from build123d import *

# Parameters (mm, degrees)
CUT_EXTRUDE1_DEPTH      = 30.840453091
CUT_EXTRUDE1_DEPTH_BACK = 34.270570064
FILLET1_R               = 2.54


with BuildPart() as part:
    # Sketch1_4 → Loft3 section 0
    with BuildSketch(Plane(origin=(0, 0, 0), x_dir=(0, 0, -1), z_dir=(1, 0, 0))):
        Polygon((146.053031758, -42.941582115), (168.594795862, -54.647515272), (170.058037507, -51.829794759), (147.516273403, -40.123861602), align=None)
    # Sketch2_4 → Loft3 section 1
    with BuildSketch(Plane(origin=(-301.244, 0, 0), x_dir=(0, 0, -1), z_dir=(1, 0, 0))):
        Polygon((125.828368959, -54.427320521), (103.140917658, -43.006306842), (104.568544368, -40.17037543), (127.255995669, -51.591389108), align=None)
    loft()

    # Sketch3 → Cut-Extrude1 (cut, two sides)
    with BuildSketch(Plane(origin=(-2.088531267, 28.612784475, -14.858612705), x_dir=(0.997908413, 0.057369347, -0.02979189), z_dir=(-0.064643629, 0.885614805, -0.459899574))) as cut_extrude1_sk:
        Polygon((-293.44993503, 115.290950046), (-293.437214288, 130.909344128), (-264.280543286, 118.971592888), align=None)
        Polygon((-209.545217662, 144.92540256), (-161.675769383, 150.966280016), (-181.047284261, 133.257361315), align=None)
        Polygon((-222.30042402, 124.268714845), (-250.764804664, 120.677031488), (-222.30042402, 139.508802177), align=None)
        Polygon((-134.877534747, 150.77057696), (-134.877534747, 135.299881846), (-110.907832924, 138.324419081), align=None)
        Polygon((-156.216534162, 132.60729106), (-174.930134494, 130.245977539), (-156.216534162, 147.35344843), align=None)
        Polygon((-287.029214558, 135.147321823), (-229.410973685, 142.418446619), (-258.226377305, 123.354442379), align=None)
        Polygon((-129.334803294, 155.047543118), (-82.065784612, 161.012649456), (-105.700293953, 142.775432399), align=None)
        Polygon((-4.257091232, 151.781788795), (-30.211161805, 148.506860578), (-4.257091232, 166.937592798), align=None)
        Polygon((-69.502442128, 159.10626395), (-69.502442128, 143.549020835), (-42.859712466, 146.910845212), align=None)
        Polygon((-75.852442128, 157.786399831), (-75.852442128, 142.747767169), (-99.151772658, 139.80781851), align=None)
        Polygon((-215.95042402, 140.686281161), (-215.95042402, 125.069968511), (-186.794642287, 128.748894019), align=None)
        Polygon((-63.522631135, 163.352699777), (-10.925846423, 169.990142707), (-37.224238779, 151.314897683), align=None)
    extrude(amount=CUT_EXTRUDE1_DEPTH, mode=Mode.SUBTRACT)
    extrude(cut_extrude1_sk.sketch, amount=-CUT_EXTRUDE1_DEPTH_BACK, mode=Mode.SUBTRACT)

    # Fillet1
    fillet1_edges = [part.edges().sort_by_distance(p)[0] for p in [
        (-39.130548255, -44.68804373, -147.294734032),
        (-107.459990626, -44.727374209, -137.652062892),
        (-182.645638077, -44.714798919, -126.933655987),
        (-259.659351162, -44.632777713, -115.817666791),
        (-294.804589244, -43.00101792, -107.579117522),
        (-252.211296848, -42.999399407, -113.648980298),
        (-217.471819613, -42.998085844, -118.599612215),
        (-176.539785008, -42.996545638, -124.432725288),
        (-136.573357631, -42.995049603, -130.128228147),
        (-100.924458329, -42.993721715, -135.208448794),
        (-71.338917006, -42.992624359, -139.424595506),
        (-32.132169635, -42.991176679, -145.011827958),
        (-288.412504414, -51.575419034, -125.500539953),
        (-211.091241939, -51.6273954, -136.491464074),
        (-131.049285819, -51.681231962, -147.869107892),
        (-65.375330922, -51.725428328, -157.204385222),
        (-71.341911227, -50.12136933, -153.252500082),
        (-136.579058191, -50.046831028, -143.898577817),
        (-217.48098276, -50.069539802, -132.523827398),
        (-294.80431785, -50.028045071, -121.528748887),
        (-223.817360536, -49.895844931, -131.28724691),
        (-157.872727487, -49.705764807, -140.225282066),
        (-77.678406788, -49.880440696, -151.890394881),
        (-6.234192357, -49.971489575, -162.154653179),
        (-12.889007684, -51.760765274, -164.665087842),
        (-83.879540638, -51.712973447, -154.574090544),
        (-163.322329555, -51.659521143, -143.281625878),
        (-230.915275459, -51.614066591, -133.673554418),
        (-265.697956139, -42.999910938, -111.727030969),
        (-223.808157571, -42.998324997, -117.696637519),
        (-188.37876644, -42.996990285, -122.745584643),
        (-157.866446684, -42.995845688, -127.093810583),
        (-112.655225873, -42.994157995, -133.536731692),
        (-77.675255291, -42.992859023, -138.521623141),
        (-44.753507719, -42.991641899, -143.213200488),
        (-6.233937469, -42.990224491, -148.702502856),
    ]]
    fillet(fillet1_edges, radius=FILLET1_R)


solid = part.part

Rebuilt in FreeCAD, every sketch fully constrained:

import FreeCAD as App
import Part
import Sketcher

V = App.Vector
Q = App.Units.Quantity


def edges_at(feature, points):
    """Names of the edges that pass closest to the given points."""
    edges = feature.Shape.Edges
    near = lambda p: min(range(len(edges)), key=lambda i: edges[i].distToShape(Part.Vertex(*p))[0])
    return sorted({f"Edge{near(p) + 1}" for p in points})

doc = App.newDocument("Part")
body = doc.addObject("PartDesign::Body", "Body")

sketch1 = body.newObject("Sketcher::SketchObject", "Sketch")
sketch1.AttachmentSupport = (doc.getObject("YZ_Plane"), [""])
sketch1.MapMode = "FlatFace"
sketch1.addGeometry(Part.LineSegment(V(-42.9, -146.1, 0), V(-54.6, -168.6, 0)), False)
sketch1.addGeometry(Part.LineSegment(V(-54.6, -168.6, 0), V(-51.8, -170.1, 0)), False)
sketch1.addGeometry(Part.LineSegment(V(-51.8, -170.1, 0), V(-40.1, -147.5, 0)), False)
sketch1.addGeometry(Part.LineSegment(V(-40.1, -147.5, 0), V(-42.9, -146.1, 0)), False)
sketch1.addConstraint(Sketcher.Constraint("Coincident", 0, 2, 1, 1))
sketch1.addConstraint(Sketcher.Constraint("Coincident", 1, 2, 2, 1))
sketch1.addConstraint(Sketcher.Constraint("Coincident", 2, 2, 3, 1))
sketch1.addConstraint(Sketcher.Constraint("Coincident", 3, 2, 0, 1))
sketch1.addConstraint(Sketcher.Constraint("Perpendicular", 0, 1))
sketch1.addConstraint(Sketcher.Constraint("Perpendicular", 1, 2))
sketch1.addConstraint(Sketcher.Constraint("Perpendicular", 2, 3))
sketch1.addConstraint(Sketcher.Constraint("Distance", 0, Q("1 in")))
sketch1.addConstraint(Sketcher.Constraint("Distance", 1, Q("0.125 in")))
sketch1.addConstraint(Sketcher.Constraint("DistanceX", 2, 2, -1, 1, Q("40.123862 mm")))
sketch1.addConstraint(Sketcher.Constraint("DistanceY", 3, 2, -1, 1, Q("146.053032 mm")))
sketch1.addConstraint(Sketcher.Constraint("DistanceX", 0, 2, 1, 2, Q("2.817721 mm")))

sketch2 = body.newObject("Sketcher::SketchObject", "Sketch001")
sketch2.AttachmentSupport = (doc.getObject("YZ_Plane"), [""])
sketch2.MapMode = "FlatFace"
sketch2.AttachmentOffset = App.Placement(V(0, 0, -11.86 * 25.4), App.Rotation())
sketch2.addGeometry(Part.LineSegment(V(-43, -103.1, 0), V(-54.4, -125.8, 0)), False)
sketch2.addGeometry(Part.LineSegment(V(-54.4, -125.8, 0), V(-51.6, -127.3, 0)), False)
sketch2.addGeometry(Part.LineSegment(V(-51.6, -127.3, 0), V(-40.2, -104.6, 0)), False)
sketch2.addGeometry(Part.LineSegment(V(-40.2, -104.6, 0), V(-43, -103.1, 0)), False)
sketch2.addConstraint(Sketcher.Constraint("Coincident", 0, 2, 1, 1))
sketch2.addConstraint(Sketcher.Constraint("Coincident", 1, 2, 2, 1))
sketch2.addConstraint(Sketcher.Constraint("Coincident", 2, 2, 3, 1))
sketch2.addConstraint(Sketcher.Constraint("Coincident", 3, 2, 0, 1))
sketch2.addConstraint(Sketcher.Constraint("Perpendicular", 0, 1))
sketch2.addConstraint(Sketcher.Constraint("Perpendicular", 1, 2))
sketch2.addConstraint(Sketcher.Constraint("Perpendicular", 2, 3))
sketch2.addConstraint(Sketcher.Constraint("Distance", 0, Q("1 in")))
sketch2.addConstraint(Sketcher.Constraint("Distance", 1, Q("0.125 in")))
sketch2.addConstraint(Sketcher.Constraint("DistanceX", 0, 2, -1, 1, Q("54.427321 mm")))
sketch2.addConstraint(Sketcher.Constraint("DistanceY", 0, 2, -1, 1, Q("125.828369 mm")))
sketch2.addConstraint(Sketcher.Constraint("DistanceX", 1, 2, -1, 1, Q("51.591389 mm")))

additiveloft = body.newObject("PartDesign::AdditiveLoft", "AdditiveLoft")
additiveloft.Profile = sketch1
additiveloft.Sections = [sketch2]

sketch3 = body.newObject("Sketcher::SketchObject", "Sketch002")
sketch3.Placement = App.Placement(V(-2.088531, 28.612784, -14.858613), App.Rotation(V(0.997908413, 0.057369348, -0.02979189), V(0, -0.46086351, -0.887471027), V(-0.064643629, 0.885614805, -0.459899574), "ZXY"))
sketch3.addGeometry(Part.LineSegment(V(-293, 131, 0), V(-293, 115, 0)), False)
sketch3.addGeometry(Part.LineSegment(V(-293, 115, 0), V(-264, 119, 0)), False)
sketch3.addGeometry(Part.LineSegment(V(-264, 119, 0), V(-293, 131, 0)), False)
sketch3.addGeometry(Part.LineSegment(V(-162, 151, 0), V(-210, 145, 0)), False)
sketch3.addGeometry(Part.LineSegment(V(-210, 145, 0), V(-181, 133, 0)), False)
sketch3.addGeometry(Part.LineSegment(V(-181, 133, 0), V(-162, 151, 0)), False)
sketch3.addGeometry(Part.LineSegment(V(-251, 121, 0), V(-222, 124, 0)), False)
sketch3.addGeometry(Part.LineSegment(V(-222, 124, 0), V(-222, 140, 0)), False)
sketch3.addGeometry(Part.LineSegment(V(-222, 140, 0), V(-251, 121, 0)), False)
sketch3.addGeometry(Part.LineSegment(V(-135, 151, 0), V(-135, 135, 0)), False)
sketch3.addGeometry(Part.LineSegment(V(-135, 135, 0), V(-111, 138, 0)), False)
sketch3.addGeometry(Part.LineSegment(V(-111, 138, 0), V(-135, 151, 0)), False)
sketch3.addGeometry(Part.LineSegment(V(-175, 130, 0), V(-156, 133, 0)), False)
sketch3.addGeometry(Part.LineSegment(V(-156, 133, 0), V(-156, 147, 0)), False)
sketch3.addGeometry(Part.LineSegment(V(-156, 147, 0), V(-175, 130, 0)), False)
sketch3.addGeometry(Part.LineSegment(V(-229, 142, 0), V(-287, 135, 0)), False)
sketch3.addGeometry(Part.LineSegment(V(-287, 135, 0), V(-258, 123, 0)), False)
sketch3.addGeometry(Part.LineSegment(V(-258, 123, 0), V(-229, 142, 0)), False)
sketch3.addGeometry(Part.LineSegment(V(-82, 161, 0), V(-129, 155, 0)), False)
sketch3.addGeometry(Part.LineSegment(V(-129, 155, 0), V(-106, 143, 0)), False)
sketch3.addGeometry(Part.LineSegment(V(-106, 143, 0), V(-82, 161, 0)), False)
sketch3.addGeometry(Part.LineSegment(V(-30, 149, 0), V(-4, 152, 0)), False)
sketch3.addGeometry(Part.LineSegment(V(-4, 152, 0), V(-4, 167, 0)), False)
sketch3.addGeometry(Part.LineSegment(V(-4, 167, 0), V(-30, 149, 0)), False)
sketch3.addGeometry(Part.LineSegment(V(-70, 159, 0), V(-70, 144, 0)), False)
sketch3.addGeometry(Part.LineSegment(V(-70, 144, 0), V(-43, 147, 0)), False)
sketch3.addGeometry(Part.LineSegment(V(-43, 147, 0), V(-70, 159, 0)), False)
sketch3.addGeometry(Part.LineSegment(V(-76, 143, 0), V(-76, 158, 0)), False)
sketch3.addGeometry(Part.LineSegment(V(-76, 158, 0), V(-99, 140, 0)), False)
sketch3.addGeometry(Part.LineSegment(V(-99, 140, 0), V(-76, 143, 0)), False)
sketch3.addGeometry(Part.LineSegment(V(-216, 141, 0), V(-216, 125, 0)), False)
sketch3.addGeometry(Part.LineSegment(V(-216, 125, 0), V(-187, 129, 0)), False)
sketch3.addGeometry(Part.LineSegment(V(-187, 129, 0), V(-216, 141, 0)), False)
sketch3.addGeometry(Part.LineSegment(V(-11, 170, 0), V(-64, 163, 0)), False)
sketch3.addGeometry(Part.LineSegment(V(-64, 163, 0), V(-37, 151, 0)), False)
sketch3.addGeometry(Part.LineSegment(V(-37, 151, 0), V(-11, 170, 0)), False)
sketch3.addConstraint(Sketcher.Constraint("Coincident", 0, 2, 1, 1))
sketch3.addConstraint(Sketcher.Constraint("Coincident", 1, 2, 2, 1))
sketch3.addConstraint(Sketcher.Constraint("Coincident", 2, 2, 0, 1))
sketch3.addConstraint(Sketcher.Constraint("Coincident", 3, 2, 4, 1))
sketch3.addConstraint(Sketcher.Constraint("Coincident", 4, 2, 5, 1))
sketch3.addConstraint(Sketcher.Constraint("Coincident", 5, 2, 3, 1))
sketch3.addConstraint(Sketcher.Constraint("Coincident", 6, 2, 7, 1))
sketch3.addConstraint(Sketcher.Constraint("Coincident", 7, 2, 8, 1))
sketch3.addConstraint(Sketcher.Constraint("Coincident", 8, 2, 6, 1))
sketch3.addConstraint(Sketcher.Constraint("Coincident", 9, 2, 10, 1))
sketch3.addConstraint(Sketcher.Constraint("Coincident", 10, 2, 11, 1))
sketch3.addConstraint(Sketcher.Constraint("Coincident", 11, 2, 9, 1))
sketch3.addConstraint(Sketcher.Constraint("Coincident", 12, 2, 13, 1))
sketch3.addConstraint(Sketcher.Constraint("Coincident", 13, 2, 14, 1))
sketch3.addConstraint(Sketcher.Constraint("Coincident", 14, 2, 12, 1))
sketch3.addConstraint(Sketcher.Constraint("Coincident", 15, 2, 16, 1))
sketch3.addConstraint(Sketcher.Constraint("Coincident", 16, 2, 17, 1))
sketch3.addConstraint(Sketcher.Constraint("Coincident", 17, 2, 15, 1))
sketch3.addConstraint(Sketcher.Constraint("Coincident", 18, 2, 19, 1))
sketch3.addConstraint(Sketcher.Constraint("Coincident", 19, 2, 20, 1))
sketch3.addConstraint(Sketcher.Constraint("Coincident", 20, 2, 18, 1))
sketch3.addConstraint(Sketcher.Constraint("Coincident", 21, 2, 22, 1))
sketch3.addConstraint(Sketcher.Constraint("Coincident", 22, 2, 23, 1))
sketch3.addConstraint(Sketcher.Constraint("Coincident", 23, 2, 21, 1))
sketch3.addConstraint(Sketcher.Constraint("Coincident", 24, 2, 25, 1))
sketch3.addConstraint(Sketcher.Constraint("Coincident", 25, 2, 26, 1))
sketch3.addConstraint(Sketcher.Constraint("Coincident", 26, 2, 24, 1))
sketch3.addConstraint(Sketcher.Constraint("Coincident", 27, 2, 28, 1))
sketch3.addConstraint(Sketcher.Constraint("Coincident", 28, 2, 29, 1))
sketch3.addConstraint(Sketcher.Constraint("Coincident", 29, 2, 27, 1))
sketch3.addConstraint(Sketcher.Constraint("Coincident", 30, 2, 31, 1))
sketch3.addConstraint(Sketcher.Constraint("Coincident", 31, 2, 32, 1))
sketch3.addConstraint(Sketcher.Constraint("Coincident", 32, 2, 30, 1))
sketch3.addConstraint(Sketcher.Constraint("Coincident", 33, 2, 34, 1))
sketch3.addConstraint(Sketcher.Constraint("Coincident", 34, 2, 35, 1))
sketch3.addConstraint(Sketcher.Constraint("Coincident", 35, 2, 33, 1))
sketch3.addConstraint(Sketcher.Constraint("Vertical", 7))
sketch3.addConstraint(Sketcher.Constraint("Vertical", 9))
sketch3.addConstraint(Sketcher.Constraint("Vertical", 13))
sketch3.addConstraint(Sketcher.Constraint("Vertical", 22))
sketch3.addConstraint(Sketcher.Constraint("Vertical", 24))
sketch3.addConstraint(Sketcher.Constraint("Vertical", 27))
sketch3.addConstraint(Sketcher.Constraint("Vertical", 30))
sketch3.addConstraint(Sketcher.Constraint("Parallel", 2, 4))
sketch3.addConstraint(Sketcher.Constraint("Parallel", 1, 6))
sketch3.addConstraint(Sketcher.Constraint("Parallel", 6, 10))
sketch3.addConstraint(Sketcher.Constraint("Parallel", 10, 12))
sketch3.addConstraint(Sketcher.Constraint("Parallel", 5, 14))
sketch3.addConstraint(Sketcher.Constraint("Parallel", 3, 15))
sketch3.addConstraint(Sketcher.Constraint("Parallel", 4, 16))
sketch3.addConstraint(Sketcher.Constraint("Parallel", 8, 17))
sketch3.addConstraint(Sketcher.Constraint("Parallel", 15, 18))
sketch3.addConstraint(Sketcher.Constraint("Parallel", 11, 19))
sketch3.addConstraint(Sketcher.Constraint("Parallel", 12, 21))
sketch3.addConstraint(Sketcher.Constraint("Parallel", 21, 25))
sketch3.addConstraint(Sketcher.Constraint("Parallel", 20, 28))
sketch3.addConstraint(Sketcher.Constraint("Parallel", 25, 29))
sketch3.addConstraint(Sketcher.Constraint("Parallel", 29, 31))
sketch3.addConstraint(Sketcher.Constraint("Parallel", 16, 32))
sketch3.addConstraint(Sketcher.Constraint("Parallel", 18, 33))
sketch3.addConstraint(Sketcher.Constraint("Parallel", 26, 34))
sketch3.addConstraint(Sketcher.Constraint("Parallel", 23, 35))
sketch3.addConstraint(Sketcher.Constraint("DistanceX", 27, 2, 26, 2, Q("0.25 in")))
sketch3.addConstraint(Sketcher.Constraint("DistanceX", 6, 2, 30, 2, Q("0.25 in")))
sketch3.addConstraint(Sketcher.Constraint("DistanceX", 1, 2, 4, 2, Q("3.2769 in")))
sketch3.addConstraint(Sketcher.Constraint("Distance", 0, Q("15.618399 mm")))
sketch3.addConstraint(Sketcher.Constraint("DistanceY", -1, 1, 27, 2, Q("157.7864 mm")))
sketch3.addConstraint(Sketcher.Constraint("DistanceY", -1, 1, 33, 2, Q("163.3527 mm")))
sketch3.addConstraint(Sketcher.Constraint("DistanceY", 7, 2, 3, 2, Q("5.4166 mm")))
sketch3.addConstraint(Sketcher.Constraint("DistanceY", 9, 2, 5, 2, Q("15.666398 mm")))
sketch3.addConstraint(Sketcher.Constraint("DistanceX", 9, 2, 10, 2, Q("23.969702 mm")))
sketch3.addConstraint(Sketcher.Constraint("DistanceX", 12, 2, 9, 2, Q("21.338999 mm")))
sketch3.addConstraint(Sketcher.Constraint("DistanceX", 14, 2, 12, 2, Q("18.7136 mm")))
sketch3.addConstraint(Sketcher.Constraint("DistanceX", 2, 2, 15, 2, Q("6.408 mm")))
sketch3.addConstraint(Sketcher.Constraint("DistanceY", 16, 2, 2, 2, Q("7.554902 mm")))
sketch3.addConstraint(Sketcher.Constraint("DistanceY", 10, 2, 24, 2, Q("5.224602 mm")))
sketch3.addConstraint(Sketcher.Constraint("DistanceY", 10, 2, 28, 2, Q("1.483399 mm")))
sketch3.addConstraint(Sketcher.Constraint("Distance", 1, Q("29.40069 mm")))
sketch3.addConstraint(Sketcher.Constraint("Distance", 4, Q("30.79408 mm")))
sketch3.addConstraint(Sketcher.Constraint("Distance", 5, Q("26.246169 mm")))
sketch3.addConstraint(Sketcher.Constraint("Distance", 6, Q("28.690088 mm")))
sketch3.addConstraint(Sketcher.Constraint("Distance", 10, Q("24.159769 mm")))
sketch3.addConstraint(Sketcher.Constraint("Distance", 14, Q("25.354771 mm")))
sketch3.addConstraint(Sketcher.Constraint("Distance", 16, Q("31.123551 mm")))
sketch3.addConstraint(Sketcher.Constraint("Distance", 19, Q("26.63071 mm")))
sketch3.addConstraint(Sketcher.Constraint("Distance", 20, Q("29.852741 mm")))
sketch3.addConstraint(Sketcher.Constraint("Distance", 26, Q("29.301251 mm")))
sketch3.addConstraint(Sketcher.Constraint("Distance", 29, Q("23.484082 mm")))
sketch3.addConstraint(Sketcher.Constraint("Distance", 31, Q("29.386972 mm")))
sketch3.addConstraint(Sketcher.Constraint("Distance", 35, Q("32.25477 mm")))
sketch3.addConstraint(Sketcher.Constraint("DistanceY", 7, 1, 7, 2, Q("15.240087 mm")))
sketch3.addConstraint(Sketcher.Constraint("DistanceY", 9, 2, 9, 1, Q("15.470695 mm")))
sketch3.addConstraint(Sketcher.Constraint("DistanceY", 22, 1, 22, 2, Q("15.155804 mm")))
sketch3.addConstraint(Sketcher.Constraint("DistanceY", 24, 2, 24, 1, Q("15.557243 mm")))
sketch3.addConstraint(Sketcher.Constraint("DistanceY", 27, 1, 27, 2, Q("15.038633 mm")))
sketch3.addConstraint(Sketcher.Constraint("DistanceY", -1, 1, 0, 2, Q("115.29095 mm")))
sketch3.addConstraint(Sketcher.Constraint("DistanceX", 5, 2, -1, 1, Q("161.675769 mm")))
sketch3.addConstraint(Sketcher.Constraint("DistanceY", -1, 1, 12, 2, Q("132.607291 mm")))
sketch3.addConstraint(Sketcher.Constraint("DistanceY", -1, 1, 20, 2, Q("161.012649 mm")))
sketch3.addConstraint(Sketcher.Constraint("DistanceX", 21, 2, -1, 1, Q("4.257091 mm")))
sketch3.addConstraint(Sketcher.Constraint("DistanceY", -1, 1, 21, 2, Q("151.781789 mm")))
sketch3.addConstraint(Sketcher.Constraint("DistanceX", 23, 2, -1, 1, Q("30.211162 mm")))
sketch3.addConstraint(Sketcher.Constraint("DistanceY", -1, 1, 30, 2, Q("125.069968 mm")))
sketch3.addConstraint(Sketcher.Constraint("DistanceX", 33, 2, -1, 1, Q("63.522631 mm")))
sketch3.addConstraint(Sketcher.Constraint("DistanceX", 6, 2, 4, 2, Q("41.25314 mm")))
sketch3.addConstraint(Sketcher.Constraint("DistanceX", 4, 2, 9, 2, Q("46.169749 mm")))
sketch3.addConstraint(Sketcher.Constraint("DistanceX", 11, 2, 18, 2, Q("5.542731 mm")))
sketch3.addConstraint(Sketcher.Constraint("DistanceX", 19, 2, 24, 2, Q("36.197852 mm")))
pocket1 = body.newObject("PartDesign::Pocket", "Pocket")
pocket1.Profile = sketch3
pocket1.Type = "ThroughAll"
pocket1.Midplane = True
doc.recompute()

fillet = body.newObject("PartDesign::Fillet", "Fillet")
fillet.Base = (pocket1, edges_at(pocket1, [
    (-39.131, -44.688, -147.295),
    (-107.46, -44.727, -137.652),
    (-182.646, -44.715, -126.934),
    (-259.659, -44.633, -115.818),
    (-294.805, -43.001, -107.579),
    (-252.211, -42.999, -113.649),
    (-217.472, -42.998, -118.6),
    (-176.54, -42.997, -124.433),
    (-136.573, -42.995, -130.128),
    (-100.924, -42.994, -135.208),
    (-71.339, -42.993, -139.425),
    (-32.132, -42.991, -145.012),
    (-288.413, -51.575, -125.501),
    (-211.091, -51.627, -136.491),
    (-131.049, -51.681, -147.869),
    (-65.375, -51.725, -157.204),
    (-71.342, -50.121, -153.253),
    (-136.579, -50.047, -143.899),
    (-217.481, -50.07, -132.524),
    (-294.804, -50.028, -121.529),
    (-223.817, -49.896, -131.287),
    (-157.873, -49.706, -140.225),
    (-77.678, -49.88, -151.89),
    (-6.234, -49.971, -162.155),
    (-12.889, -51.761, -164.665),
    (-83.88, -51.713, -154.574),
    (-163.322, -51.66, -143.282),
    (-230.915, -51.614, -133.674),
    (-265.698, -43, -111.727),
    (-223.808, -42.998, -117.697),
    (-188.379, -42.997, -122.746),
    (-157.866, -42.996, -127.094),
    (-112.655, -42.994, -133.537),
    (-77.675, -42.993, -138.522),
    (-44.754, -42.992, -143.213),
    (-6.234, -42.99, -148.703),
]))
fillet.Radius = Q("0.1 in")

doc.recompute()
